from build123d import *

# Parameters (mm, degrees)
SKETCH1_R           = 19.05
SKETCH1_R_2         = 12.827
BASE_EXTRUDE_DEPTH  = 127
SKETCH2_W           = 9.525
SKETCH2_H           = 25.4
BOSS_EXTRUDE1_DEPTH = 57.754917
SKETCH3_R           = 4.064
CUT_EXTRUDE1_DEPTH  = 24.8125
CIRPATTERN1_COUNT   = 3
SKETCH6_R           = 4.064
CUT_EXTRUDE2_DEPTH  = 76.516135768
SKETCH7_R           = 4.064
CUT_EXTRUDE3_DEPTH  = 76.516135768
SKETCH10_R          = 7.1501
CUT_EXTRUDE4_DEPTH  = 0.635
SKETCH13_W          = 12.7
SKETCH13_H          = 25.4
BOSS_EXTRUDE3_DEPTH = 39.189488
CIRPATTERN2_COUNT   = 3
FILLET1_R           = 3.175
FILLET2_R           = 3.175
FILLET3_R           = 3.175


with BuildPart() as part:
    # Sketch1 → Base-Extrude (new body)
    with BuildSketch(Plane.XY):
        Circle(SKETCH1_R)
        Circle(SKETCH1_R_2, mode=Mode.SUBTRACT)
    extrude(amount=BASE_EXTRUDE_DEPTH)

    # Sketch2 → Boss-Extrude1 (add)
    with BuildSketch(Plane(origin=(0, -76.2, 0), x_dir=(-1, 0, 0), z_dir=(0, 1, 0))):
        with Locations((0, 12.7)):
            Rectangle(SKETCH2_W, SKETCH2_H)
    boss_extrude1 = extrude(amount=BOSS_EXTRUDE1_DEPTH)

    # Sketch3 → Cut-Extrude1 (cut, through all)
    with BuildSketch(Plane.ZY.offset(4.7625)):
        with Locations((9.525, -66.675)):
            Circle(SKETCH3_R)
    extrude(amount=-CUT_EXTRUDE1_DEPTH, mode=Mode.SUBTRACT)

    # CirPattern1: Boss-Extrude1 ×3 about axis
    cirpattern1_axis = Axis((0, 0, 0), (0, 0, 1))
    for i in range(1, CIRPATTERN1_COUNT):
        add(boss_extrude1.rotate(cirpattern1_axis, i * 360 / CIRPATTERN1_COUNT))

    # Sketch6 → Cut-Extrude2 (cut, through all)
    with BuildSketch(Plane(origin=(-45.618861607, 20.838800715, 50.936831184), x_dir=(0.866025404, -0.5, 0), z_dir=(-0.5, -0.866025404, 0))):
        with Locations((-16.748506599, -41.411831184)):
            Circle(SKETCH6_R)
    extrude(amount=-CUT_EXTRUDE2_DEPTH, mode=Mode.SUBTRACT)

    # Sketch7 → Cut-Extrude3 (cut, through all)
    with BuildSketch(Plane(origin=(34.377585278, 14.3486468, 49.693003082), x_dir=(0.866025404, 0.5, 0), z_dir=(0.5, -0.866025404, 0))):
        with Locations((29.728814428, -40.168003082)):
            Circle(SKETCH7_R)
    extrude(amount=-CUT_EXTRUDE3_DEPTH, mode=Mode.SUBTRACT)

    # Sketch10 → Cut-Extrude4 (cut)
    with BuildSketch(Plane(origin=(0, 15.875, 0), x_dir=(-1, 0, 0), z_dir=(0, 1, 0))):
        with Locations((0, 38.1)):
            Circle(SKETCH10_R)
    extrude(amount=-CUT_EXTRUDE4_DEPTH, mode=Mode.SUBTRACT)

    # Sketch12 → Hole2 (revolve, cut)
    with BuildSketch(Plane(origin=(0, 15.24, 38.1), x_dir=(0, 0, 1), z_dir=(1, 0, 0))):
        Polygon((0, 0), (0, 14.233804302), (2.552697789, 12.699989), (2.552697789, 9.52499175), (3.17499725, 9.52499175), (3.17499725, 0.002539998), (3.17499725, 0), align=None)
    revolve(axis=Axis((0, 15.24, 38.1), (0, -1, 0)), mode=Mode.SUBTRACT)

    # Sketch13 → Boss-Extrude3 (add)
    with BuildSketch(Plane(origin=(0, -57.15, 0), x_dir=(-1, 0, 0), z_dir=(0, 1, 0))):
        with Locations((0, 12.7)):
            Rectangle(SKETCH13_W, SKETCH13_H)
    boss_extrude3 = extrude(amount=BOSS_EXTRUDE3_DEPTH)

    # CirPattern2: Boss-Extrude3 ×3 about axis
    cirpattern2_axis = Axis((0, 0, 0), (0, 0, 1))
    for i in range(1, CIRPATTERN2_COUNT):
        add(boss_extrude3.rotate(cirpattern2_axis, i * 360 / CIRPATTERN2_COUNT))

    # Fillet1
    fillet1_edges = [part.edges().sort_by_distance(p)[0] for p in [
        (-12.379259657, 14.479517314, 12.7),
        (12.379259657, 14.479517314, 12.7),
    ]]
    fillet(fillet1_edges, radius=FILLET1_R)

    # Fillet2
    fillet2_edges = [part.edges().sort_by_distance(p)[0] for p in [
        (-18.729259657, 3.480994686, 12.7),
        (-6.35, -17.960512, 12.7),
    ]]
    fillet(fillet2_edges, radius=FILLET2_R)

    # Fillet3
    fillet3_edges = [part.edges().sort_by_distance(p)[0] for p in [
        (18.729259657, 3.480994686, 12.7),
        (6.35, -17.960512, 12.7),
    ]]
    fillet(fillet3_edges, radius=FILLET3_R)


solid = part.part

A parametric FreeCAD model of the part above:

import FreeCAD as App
import Part
import Sketcher
Q = App.Units.Quantity


def edges_at(feature, points):
    """Names of the edges that pass closest to the given points."""
    edges = feature.Shape.Edges
    near = lambda p: min(range(len(edges)), key=lambda i: edges[i].distToShape(Part.Vertex(*p))[0])
    return sorted({f"Edge{near(p) + 1}" for p in points})


def add_polygon(sketch, points):
    """Adds a closed chain of lines whose ends are joined by coincident constraints."""
    first, n = sketch.GeometryCount, len(points)
    for a, b in zip(points, points[1:] + points[:1]):
        sketch.addGeometry(Part.LineSegment(App.Vector(*a, 0), App.Vector(*b, 0)), False)
    for i in range(n):
        sketch.addConstraint(Sketcher.Constraint("Coincident", first + i, 2, first + (i + 1) % n, 1))

doc = App.newDocument("Part")
body = doc.addObject("PartDesign::Body", "Body")

# Sketch on XY plane
sketch1 = body.newObject("Sketcher::SketchObject", "Sketch")
sketch1.AttachmentSupport = (doc.getObject("XY_Plane"), [""])
sketch1.MapMode = "FlatFace"
sketch1.addGeometry([
    Part.Circle(App.Vector(0, 0, 0), App.Vector(0, 0, 1), 19),
    Part.Circle(App.Vector(0, 0, 0), App.Vector(0, 0, 1), 13),
], False)
sketch1.addConstraint([
    Sketcher.Constraint("Coincident", 0, 3, -1, 1),
    Sketcher.Constraint("Coincident", 1, 3, -1, 1),
    Sketcher.Constraint("Diameter", 0, Q("1.5 in")),
    Sketcher.Constraint("Diameter", 1, Q("1.01 in")),
])
pad1 = body.newObject("PartDesign::Pad", "Pad")
pad1.Profile = sketch1
pad1.Length = Q("5 in")

# Sketch on XZ plane
sketch2 = body.newObject("Sketcher::SketchObject", "Sketch001")
sketch2.AttachmentSupport = (doc.getObject("XZ_Plane"), [""])
sketch2.MapMode = "FlatFace"
sketch2.AttachmentOffset = App.Placement(App.Vector(0, 0, 3 * 25.4), App.Rotation())
add_polygon(sketch2, [(5, 25), (5, 0), (-5, 0), (-5, 25)])  # lines 0-3
sketch2.addConstraint([
    Sketcher.Constraint("Vertical", 0),
    Sketcher.Constraint("Horizontal", 1),
    Sketcher.Constraint("Vertical", 2),
    Sketcher.Constraint("Horizontal", 3),
    Sketcher.Constraint("Symmetric", 0, 2, 1, 2, -1, 1),
    Sketcher.Constraint("DistanceY", 0, 2, 0, 1, Q("1 in")),
    Sketcher.Constraint("DistanceX", 1, 2, 1, 1, Q("0.375 in")),
])
pad2 = body.newObject("PartDesign::Pad", "Pad001")
pad2.Profile = sketch2
pad2.Length = 57.754917
pad2.Reversed = True

# Sketch on YZ plane
sketch3 = body.newObject("Sketcher::SketchObject", "Sketch002")
sketch3.AttachmentSupport = (doc.getObject("YZ_Plane"), [""])
sketch3.MapMode = "FlatFace"
sketch3.AttachmentOffset = App.Placement(App.Vector(0, 0, -0.1875 * 25.4), App.Rotation())
sketch3.addGeometry(Part.Circle(App.Vector(-66.7, 9.5, 0), App.Vector(0, 0, 1), 4.1), False)
sketch3.addConstraint([
    Sketcher.Constraint("Diameter", 0, Q("0.32 in")),
    Sketcher.Constraint("DistanceX", 0, 3, -1, 1, Q("2.625 in")),
    Sketcher.Constraint("DistanceY", -1, 1, 0, 3, Q("0.375 in")),
])
pocket1 = body.newObject("PartDesign::Pocket", "Pocket")
pocket1.Profile = sketch3
pocket1.Type = "ThroughAll"
pocket1.Reversed = True
doc.recompute()

polarpattern = body.newObject("PartDesign::PolarPattern", "PolarPattern")
polarpattern.Originals = [pad2]
polarpattern.Axis = (doc.getObject("Z_Axis"), [""])
polarpattern.Angle = 360
polarpattern.Occurrences = 3
body.Tip = polarpattern

# Sketch on an angled plane
sketch4 = body.newObject("Sketcher::SketchObject", "Sketch003")
sketch4.Placement = App.Placement(App.Vector(-45.618862, 20.838801, 50.936831), App.Rotation(App.Vector(0.866025404, -0.5, 0), App.Vector(0, 0, 1), App.Vector(-0.5, -0.866025404, 0), "ZXY"))
sketch4.addGeometry(Part.Circle(App.Vector(-16.7, -41.4, 0), App.Vector(0, 0, 1), 4.1), False)
sketch4.addConstraint([
    Sketcher.Constraint("Diameter", 0, Q("0.32 in")),
    Sketcher.Constraint("DistanceY", 0, 3, -1, 1, Q("41.411831 mm")),
    Sketcher.Constraint("DistanceX", 0, 3, -1, 1, Q("16.748507 mm")),
])
pocket2 = body.newObject("PartDesign::Pocket", "Pocket001")
pocket2.Profile = sketch4
pocket2.Type = "ThroughAll"

# Sketch on an angled plane
sketch5 = body.newObject("Sketcher::SketchObject", "Sketch004")
sketch5.Placement = App.Placement(App.Vector(34.377585, 14.348647, 49.693003), App.Rotation(App.Vector(0.866025404, 0.5, 0), App.Vector(0, 0, 1), App.Vector(0.5, -0.866025404, 0), "ZXY"))
sketch5.addGeometry(Part.Circle(App.Vector(29.7, -40.2, 0), App.Vector(0, 0, 1), 4.1), False)
sketch5.addConstraint([
    Sketcher.Constraint("Diameter", 0, Q("0.32 in")),
    Sketcher.Constraint("DistanceX", -1, 1, 0, 3, Q("29.728814 mm")),
    Sketcher.Constraint("DistanceY", 0, 3, -1, 1, Q("40.168003 mm")),
])
pocket3 = body.newObject("PartDesign::Pocket", "Pocket002")
pocket3.Profile = sketch5
pocket3.Type = "ThroughAll"

# Sketch on XZ plane
sketch6 = body.newObject("Sketcher::SketchObject", "Sketch005")
sketch6.AttachmentSupport = (doc.getObject("XZ_Plane"), [""])
sketch6.MapMode = "FlatFace"
sketch6.AttachmentOffset = App.Placement(App.Vector(0, 0, -0.625 * 25.4), App.Rotation())
sketch6.addGeometry(Part.Circle(App.Vector(0, 38, 0), App.Vector(0, 0, 1), 7), False)
sketch6.addConstraint([
    Sketcher.Constraint("PointOnObject", 0, 3, -2),
    Sketcher.Constraint("Diameter", 0, Q("0.563 in")),
    Sketcher.Constraint("DistanceY", -1, 1, 0, 3, Q("1.5 in")),
])
pocket4 = body.newObject("PartDesign::Pocket", "Pocket003")
pocket4.Profile = sketch6
pocket4.Length = Q("0.025 in")
pocket4.Reversed = True

# Sketch on YZ plane
sketch7 = body.newObject("Sketcher::SketchObject", "Sketch006")
sketch7.AttachmentSupport = (doc.getObject("YZ_Plane"), [""])
sketch7.MapMode = "FlatFace"
add_polygon(sketch7, [(1, 38.1), (15.2, 38.1), (15.2, 41.3), (5.7, 41.3), (5.7, 40.7), (2.5, 40.7)])  # lines 0-5
sketch7.addGeometry(Part.LineSegment(App.Vector(15.2, 38.1, 0), App.Vector(1, 38.1, 0)), True)  # axis
sketch7.addConstraint([
    Sketcher.Constraint("Horizontal", 0),
    Sketcher.Constraint("Vertical", 1),
    Sketcher.Constraint("Horizontal", 2),
    Sketcher.Constraint("Vertical", 3),
    Sketcher.Constraint("Horizontal", 4),
    Sketcher.Constraint("Horizontal", 6),
    Sketcher.Constraint("Coincident", 6, 1, 0, 2),
    Sketcher.Constraint("Equal", 0, 6),
    Sketcher.Constraint("Equal", 4, 1),
    Sketcher.Constraint("Angle", 5, Q("-120.999996 deg")),
    Sketcher.Constraint("DistanceX", -1, 1, 0, 2, Q("0.6 in")),
    Sketcher.Constraint("DistanceY", -1, 1, 0, 2, Q("1.5 in")),
    Sketcher.Constraint("DistanceX", 4, 2, 4, 1, Q("0.1249999 in")),
    Sketcher.Constraint("DistanceY", 3, 2, 3, 1, Q("0.0245 in")),
    Sketcher.Constraint("DistanceX", 2, 2, 2, 1, Q("9.524992 mm")),
])
groove = body.newObject("PartDesign::Groove", "Groove")
groove.Profile = sketch7
groove.ReferenceAxis = (sketch7, ["Axis0"])
groove.Angle = 360

# Sketch on XZ plane
sketch8 = body.newObject("Sketcher::SketchObject", "Sketch007")
sketch8.AttachmentSupport = (doc.getObject("XZ_Plane"), [""])
sketch8.MapMode = "FlatFace"
sketch8.AttachmentOffset = App.Placement(App.Vector(0, 0, 2.25 * 25.4), App.Rotation())
add_polygon(sketch8, [(6, 25), (6, 0), (-6, 0), (-6, 25)])  # lines 0-3
sketch8.addConstraint([
    Sketcher.Constraint("Vertical", 0),
    Sketcher.Constraint("Horizontal", 1),
    Sketcher.Constraint("Vertical", 2),
    Sketcher.Constraint("Horizontal", 3),
    Sketcher.Constraint("Symmetric", 0, 2, 1, 2, -1, 1),
    Sketcher.Constraint("DistanceY", 0, 2, 0, 1, Q("1 in")),
    Sketcher.Constraint("DistanceX", 1, 2, 1, 1, Q("0.5 in")),
])
pad3 = body.newObject("PartDesign::Pad", "Pad002")
pad3.Profile = sketch8
pad3.Length = 39.189488
pad3.Reversed = True
doc.recompute()

polarpattern2 = body.newObject("PartDesign::PolarPattern", "PolarPattern001")
polarpattern2.Originals = [pad3]
polarpattern2.Axis = (doc.getObject("Z_Axis"), [""])
polarpattern2.Angle = 360
polarpattern2.Occurrences = 3
body.Tip = polarpattern2
doc.recompute()

fillet = body.newObject("PartDesign::Fillet", "Fillet")
fillet.Base = (polarpattern2, edges_at(polarpattern2, [(-12.379, 14.48, 12.7), (12.379, 14.48, 12.7)]))
fillet.Radius = Q("0.125 in")
doc.recompute()

fillet2 = body.newObject("PartDesign::Fillet", "Fillet001")
fillet2.Base = (fillet, edges_at(fillet, [(-18.729, 3.481, 12.7), (-6.35, -17.961, 12.7)]))
fillet2.Radius = Q("0.125 in")
doc.recompute()

fillet3 = body.newObject("PartDesign::Fillet", "Fillet002")
fillet3.Base = (fillet2, edges_at(fillet2, [(18.729, 3.481, 12.7), (6.35, -17.961, 12.7)]))
fillet3.Radius = Q("0.125 in")

doc.recompute()
